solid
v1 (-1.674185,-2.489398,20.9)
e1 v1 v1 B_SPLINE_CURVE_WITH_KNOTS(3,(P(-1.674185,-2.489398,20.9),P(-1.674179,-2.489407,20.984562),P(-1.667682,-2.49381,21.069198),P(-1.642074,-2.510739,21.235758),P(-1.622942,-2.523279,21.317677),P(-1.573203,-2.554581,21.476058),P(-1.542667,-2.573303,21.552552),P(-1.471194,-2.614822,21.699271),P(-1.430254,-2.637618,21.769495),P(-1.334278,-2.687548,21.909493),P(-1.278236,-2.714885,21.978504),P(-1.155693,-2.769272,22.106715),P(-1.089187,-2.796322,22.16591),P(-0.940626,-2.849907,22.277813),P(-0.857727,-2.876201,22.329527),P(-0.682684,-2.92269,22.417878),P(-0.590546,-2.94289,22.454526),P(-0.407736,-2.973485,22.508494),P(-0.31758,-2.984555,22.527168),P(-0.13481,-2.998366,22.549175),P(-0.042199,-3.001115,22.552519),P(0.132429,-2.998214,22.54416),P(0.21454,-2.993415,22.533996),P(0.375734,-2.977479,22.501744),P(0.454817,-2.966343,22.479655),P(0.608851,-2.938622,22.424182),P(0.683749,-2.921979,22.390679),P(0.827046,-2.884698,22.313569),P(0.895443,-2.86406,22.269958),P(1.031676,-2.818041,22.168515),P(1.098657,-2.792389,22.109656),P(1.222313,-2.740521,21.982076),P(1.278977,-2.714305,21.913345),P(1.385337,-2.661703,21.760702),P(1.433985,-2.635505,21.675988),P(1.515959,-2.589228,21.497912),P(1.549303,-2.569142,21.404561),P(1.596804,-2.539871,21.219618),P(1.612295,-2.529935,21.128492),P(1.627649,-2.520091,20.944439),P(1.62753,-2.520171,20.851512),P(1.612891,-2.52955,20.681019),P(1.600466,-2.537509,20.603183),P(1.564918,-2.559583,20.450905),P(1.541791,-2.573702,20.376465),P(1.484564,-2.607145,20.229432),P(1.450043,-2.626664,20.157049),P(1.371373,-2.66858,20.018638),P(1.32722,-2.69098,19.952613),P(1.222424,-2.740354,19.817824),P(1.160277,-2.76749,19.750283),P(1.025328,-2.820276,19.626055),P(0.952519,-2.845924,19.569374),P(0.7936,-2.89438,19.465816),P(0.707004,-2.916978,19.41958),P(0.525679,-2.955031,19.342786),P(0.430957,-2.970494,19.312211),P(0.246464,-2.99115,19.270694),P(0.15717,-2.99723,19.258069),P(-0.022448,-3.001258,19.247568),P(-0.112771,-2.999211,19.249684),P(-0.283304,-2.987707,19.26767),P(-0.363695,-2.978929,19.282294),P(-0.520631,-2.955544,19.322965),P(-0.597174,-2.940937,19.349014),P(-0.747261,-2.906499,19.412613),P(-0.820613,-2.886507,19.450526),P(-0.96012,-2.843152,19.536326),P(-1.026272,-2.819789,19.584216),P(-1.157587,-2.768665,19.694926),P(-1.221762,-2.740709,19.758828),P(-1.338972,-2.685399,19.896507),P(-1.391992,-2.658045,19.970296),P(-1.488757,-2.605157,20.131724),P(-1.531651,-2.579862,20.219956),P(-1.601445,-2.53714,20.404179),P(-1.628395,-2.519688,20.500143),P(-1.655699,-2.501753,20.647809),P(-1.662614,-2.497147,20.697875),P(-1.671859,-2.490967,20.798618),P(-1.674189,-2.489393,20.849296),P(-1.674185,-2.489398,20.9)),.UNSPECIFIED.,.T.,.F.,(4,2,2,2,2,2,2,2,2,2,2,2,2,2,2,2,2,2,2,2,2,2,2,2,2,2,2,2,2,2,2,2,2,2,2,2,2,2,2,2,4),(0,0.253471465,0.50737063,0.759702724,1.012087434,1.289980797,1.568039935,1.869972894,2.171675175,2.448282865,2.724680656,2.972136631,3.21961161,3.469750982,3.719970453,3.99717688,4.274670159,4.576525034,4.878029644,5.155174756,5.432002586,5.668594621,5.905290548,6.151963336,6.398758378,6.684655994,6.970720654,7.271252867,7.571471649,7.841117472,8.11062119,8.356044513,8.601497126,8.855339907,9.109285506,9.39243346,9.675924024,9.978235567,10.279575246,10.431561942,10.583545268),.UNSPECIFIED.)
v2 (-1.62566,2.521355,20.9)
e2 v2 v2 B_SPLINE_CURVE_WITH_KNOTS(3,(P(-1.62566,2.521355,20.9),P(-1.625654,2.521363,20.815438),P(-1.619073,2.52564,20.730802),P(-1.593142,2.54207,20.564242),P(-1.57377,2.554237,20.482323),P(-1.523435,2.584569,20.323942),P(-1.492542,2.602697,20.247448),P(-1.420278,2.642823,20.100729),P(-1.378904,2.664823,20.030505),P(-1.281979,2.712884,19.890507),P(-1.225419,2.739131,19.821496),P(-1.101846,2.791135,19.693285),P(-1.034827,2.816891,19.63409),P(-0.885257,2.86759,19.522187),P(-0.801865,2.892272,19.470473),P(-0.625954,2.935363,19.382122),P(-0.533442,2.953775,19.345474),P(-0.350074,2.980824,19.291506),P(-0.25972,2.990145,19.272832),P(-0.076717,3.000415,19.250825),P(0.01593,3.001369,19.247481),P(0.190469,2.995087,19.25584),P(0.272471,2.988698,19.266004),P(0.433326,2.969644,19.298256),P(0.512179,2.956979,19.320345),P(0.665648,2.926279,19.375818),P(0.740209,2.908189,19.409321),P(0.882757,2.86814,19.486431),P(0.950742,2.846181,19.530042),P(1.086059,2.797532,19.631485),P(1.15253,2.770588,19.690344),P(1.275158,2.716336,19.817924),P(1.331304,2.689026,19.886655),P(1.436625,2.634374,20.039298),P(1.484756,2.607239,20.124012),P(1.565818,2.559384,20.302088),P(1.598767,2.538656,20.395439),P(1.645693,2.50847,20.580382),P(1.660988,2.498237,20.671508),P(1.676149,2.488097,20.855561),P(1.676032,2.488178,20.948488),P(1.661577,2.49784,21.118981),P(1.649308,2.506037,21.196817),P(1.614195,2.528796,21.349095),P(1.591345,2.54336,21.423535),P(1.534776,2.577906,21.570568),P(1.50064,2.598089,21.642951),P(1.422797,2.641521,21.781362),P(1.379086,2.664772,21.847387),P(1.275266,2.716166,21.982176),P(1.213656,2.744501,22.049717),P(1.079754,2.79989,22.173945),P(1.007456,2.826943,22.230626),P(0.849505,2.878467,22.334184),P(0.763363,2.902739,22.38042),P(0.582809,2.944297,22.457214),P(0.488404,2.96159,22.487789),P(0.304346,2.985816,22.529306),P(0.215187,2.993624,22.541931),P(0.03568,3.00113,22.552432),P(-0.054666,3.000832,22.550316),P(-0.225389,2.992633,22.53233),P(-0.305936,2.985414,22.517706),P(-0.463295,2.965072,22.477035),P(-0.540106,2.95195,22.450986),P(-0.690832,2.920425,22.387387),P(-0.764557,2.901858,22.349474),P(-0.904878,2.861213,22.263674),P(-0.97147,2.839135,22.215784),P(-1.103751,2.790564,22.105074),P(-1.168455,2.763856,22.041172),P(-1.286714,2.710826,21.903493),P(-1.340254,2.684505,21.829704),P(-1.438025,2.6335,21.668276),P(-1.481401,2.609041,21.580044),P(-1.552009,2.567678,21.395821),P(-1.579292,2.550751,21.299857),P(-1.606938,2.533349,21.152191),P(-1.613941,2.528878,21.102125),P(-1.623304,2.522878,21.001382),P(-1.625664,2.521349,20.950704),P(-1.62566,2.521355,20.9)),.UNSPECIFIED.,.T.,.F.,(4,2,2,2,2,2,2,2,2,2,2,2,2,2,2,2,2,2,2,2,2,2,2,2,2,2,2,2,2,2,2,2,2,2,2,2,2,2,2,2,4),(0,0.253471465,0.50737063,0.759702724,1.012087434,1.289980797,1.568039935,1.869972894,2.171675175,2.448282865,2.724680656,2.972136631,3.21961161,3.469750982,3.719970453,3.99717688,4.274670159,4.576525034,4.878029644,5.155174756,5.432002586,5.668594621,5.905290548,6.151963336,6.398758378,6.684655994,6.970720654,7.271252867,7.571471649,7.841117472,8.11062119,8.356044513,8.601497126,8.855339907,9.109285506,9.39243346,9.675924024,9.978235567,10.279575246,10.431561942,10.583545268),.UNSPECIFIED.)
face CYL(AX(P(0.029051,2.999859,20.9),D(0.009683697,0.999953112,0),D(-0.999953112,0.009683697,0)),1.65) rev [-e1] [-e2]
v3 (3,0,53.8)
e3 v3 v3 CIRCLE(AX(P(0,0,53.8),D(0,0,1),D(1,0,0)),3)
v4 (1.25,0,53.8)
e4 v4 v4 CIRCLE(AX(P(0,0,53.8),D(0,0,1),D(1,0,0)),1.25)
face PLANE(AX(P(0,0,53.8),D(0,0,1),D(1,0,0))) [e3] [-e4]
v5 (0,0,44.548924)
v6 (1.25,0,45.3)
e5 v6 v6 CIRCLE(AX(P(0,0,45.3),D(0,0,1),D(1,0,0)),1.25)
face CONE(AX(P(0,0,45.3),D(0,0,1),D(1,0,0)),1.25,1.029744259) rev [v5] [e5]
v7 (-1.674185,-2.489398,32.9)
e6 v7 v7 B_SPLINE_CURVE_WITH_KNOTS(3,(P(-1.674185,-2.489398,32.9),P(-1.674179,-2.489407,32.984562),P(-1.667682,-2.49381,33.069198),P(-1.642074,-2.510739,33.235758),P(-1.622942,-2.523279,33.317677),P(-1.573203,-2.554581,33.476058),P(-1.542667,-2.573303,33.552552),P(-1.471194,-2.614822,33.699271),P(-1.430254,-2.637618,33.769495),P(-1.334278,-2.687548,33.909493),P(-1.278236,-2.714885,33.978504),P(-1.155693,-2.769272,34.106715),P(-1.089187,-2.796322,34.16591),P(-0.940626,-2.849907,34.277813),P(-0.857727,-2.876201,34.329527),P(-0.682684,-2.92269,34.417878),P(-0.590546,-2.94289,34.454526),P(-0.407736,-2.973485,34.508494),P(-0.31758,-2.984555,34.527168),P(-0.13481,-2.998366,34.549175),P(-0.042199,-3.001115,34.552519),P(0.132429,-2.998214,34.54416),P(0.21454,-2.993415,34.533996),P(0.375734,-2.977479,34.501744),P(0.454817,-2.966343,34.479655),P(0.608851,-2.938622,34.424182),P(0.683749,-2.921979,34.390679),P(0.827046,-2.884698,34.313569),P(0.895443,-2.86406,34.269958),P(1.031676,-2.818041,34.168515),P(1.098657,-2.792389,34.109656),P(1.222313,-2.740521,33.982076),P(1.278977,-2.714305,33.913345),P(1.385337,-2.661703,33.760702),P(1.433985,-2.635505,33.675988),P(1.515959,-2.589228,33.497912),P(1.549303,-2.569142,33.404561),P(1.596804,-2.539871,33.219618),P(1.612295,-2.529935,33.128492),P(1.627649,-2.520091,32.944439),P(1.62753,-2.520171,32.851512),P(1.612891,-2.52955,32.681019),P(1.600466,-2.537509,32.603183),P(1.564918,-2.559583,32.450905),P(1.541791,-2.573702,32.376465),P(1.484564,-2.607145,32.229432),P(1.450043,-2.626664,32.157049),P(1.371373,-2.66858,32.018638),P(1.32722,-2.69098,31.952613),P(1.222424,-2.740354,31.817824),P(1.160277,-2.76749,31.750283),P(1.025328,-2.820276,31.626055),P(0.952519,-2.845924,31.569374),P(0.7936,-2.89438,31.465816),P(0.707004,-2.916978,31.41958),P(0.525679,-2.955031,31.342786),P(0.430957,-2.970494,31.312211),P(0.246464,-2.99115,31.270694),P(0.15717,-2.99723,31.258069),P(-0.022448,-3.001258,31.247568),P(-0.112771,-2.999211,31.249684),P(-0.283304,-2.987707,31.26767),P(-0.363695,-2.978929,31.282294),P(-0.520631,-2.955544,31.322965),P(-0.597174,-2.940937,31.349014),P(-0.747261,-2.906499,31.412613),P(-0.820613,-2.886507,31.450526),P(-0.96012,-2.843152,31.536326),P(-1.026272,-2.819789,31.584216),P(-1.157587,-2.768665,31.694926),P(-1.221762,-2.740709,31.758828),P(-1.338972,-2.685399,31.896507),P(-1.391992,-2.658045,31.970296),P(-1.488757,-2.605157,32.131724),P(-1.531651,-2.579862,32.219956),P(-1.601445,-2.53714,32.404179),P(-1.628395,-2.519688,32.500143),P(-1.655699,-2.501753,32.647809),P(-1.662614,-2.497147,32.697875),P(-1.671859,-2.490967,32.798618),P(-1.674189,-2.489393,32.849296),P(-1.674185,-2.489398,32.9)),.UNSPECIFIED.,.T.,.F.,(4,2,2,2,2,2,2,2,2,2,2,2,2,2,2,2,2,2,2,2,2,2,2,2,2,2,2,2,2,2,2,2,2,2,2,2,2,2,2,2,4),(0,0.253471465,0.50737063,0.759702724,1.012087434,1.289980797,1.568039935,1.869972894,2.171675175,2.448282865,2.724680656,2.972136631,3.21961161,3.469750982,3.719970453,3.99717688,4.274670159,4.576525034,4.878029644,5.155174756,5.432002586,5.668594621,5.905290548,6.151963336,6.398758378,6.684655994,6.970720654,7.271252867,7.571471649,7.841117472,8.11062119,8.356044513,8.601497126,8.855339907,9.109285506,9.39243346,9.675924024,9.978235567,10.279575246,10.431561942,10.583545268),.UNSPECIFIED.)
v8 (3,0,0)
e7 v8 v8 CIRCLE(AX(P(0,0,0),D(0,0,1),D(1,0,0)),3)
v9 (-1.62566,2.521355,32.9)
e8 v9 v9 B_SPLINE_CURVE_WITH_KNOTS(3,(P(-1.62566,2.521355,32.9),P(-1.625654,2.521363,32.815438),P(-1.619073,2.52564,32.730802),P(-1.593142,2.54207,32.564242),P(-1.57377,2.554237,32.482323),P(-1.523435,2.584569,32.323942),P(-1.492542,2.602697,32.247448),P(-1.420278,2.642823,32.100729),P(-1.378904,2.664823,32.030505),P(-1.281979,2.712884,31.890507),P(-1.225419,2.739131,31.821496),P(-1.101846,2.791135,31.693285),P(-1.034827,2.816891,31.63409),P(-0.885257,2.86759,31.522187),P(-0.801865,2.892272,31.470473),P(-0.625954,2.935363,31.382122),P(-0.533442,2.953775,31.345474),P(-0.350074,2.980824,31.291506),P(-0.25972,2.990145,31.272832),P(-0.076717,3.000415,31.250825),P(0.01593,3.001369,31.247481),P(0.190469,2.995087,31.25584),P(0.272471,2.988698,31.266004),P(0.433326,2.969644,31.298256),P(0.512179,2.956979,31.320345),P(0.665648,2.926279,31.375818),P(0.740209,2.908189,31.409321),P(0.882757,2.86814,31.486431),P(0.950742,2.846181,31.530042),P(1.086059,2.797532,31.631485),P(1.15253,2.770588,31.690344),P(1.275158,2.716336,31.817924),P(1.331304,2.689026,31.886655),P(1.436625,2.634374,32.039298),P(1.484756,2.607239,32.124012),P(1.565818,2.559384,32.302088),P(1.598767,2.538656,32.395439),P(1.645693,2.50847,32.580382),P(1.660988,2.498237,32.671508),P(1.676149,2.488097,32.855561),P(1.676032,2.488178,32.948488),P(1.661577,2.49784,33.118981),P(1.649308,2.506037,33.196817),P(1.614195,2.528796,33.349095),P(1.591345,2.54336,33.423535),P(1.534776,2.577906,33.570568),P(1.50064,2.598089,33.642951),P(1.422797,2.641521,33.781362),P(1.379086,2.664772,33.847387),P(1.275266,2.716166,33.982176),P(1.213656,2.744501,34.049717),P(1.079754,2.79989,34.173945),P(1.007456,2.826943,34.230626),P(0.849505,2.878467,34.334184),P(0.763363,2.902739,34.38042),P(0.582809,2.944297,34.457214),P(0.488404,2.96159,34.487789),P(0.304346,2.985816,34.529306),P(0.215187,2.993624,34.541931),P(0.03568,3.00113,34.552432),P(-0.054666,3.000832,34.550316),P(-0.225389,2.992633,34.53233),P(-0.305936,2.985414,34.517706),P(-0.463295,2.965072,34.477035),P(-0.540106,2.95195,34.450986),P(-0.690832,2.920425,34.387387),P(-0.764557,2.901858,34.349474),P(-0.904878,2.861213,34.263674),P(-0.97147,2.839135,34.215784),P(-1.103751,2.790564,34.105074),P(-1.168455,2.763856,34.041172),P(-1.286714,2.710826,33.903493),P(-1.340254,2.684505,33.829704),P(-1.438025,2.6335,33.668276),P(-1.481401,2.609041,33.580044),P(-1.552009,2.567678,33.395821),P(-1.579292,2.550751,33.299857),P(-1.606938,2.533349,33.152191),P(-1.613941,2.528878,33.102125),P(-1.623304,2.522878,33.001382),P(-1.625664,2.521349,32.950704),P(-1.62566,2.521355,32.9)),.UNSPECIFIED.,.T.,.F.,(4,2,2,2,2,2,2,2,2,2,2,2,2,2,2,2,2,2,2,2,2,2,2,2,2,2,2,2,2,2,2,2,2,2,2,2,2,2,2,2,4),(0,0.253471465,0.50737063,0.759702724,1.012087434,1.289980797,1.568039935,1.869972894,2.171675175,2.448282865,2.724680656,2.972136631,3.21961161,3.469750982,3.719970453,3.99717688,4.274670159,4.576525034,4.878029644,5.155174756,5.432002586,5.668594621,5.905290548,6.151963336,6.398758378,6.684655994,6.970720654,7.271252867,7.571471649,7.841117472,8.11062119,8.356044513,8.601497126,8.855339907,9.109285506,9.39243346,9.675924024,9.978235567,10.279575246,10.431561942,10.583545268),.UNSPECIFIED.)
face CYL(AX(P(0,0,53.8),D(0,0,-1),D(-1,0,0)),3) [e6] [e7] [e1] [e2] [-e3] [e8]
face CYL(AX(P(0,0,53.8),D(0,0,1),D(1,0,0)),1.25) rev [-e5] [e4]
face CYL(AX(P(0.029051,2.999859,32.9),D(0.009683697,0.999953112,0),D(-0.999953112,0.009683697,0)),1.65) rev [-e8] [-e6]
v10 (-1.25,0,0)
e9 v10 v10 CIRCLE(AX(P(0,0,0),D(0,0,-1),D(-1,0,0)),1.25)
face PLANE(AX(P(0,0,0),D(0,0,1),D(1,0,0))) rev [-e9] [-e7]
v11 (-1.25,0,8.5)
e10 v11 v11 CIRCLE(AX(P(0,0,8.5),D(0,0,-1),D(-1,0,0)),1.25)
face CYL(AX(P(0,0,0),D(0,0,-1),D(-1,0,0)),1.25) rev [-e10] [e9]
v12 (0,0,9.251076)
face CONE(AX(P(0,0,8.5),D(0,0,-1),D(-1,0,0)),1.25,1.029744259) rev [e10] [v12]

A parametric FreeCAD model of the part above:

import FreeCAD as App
import Part
import Sketcher
Q = App.Units.Quantity

doc = App.newDocument("Part")
body = doc.addObject("PartDesign::Body", "Body")

# Sketch on XY plane
sketch1 = doc.addObject("Sketcher::SketchObject", "Sketch")
body.addObject(sketch1)
sketch1.AttachmentSupport = (doc.XY_Plane, [""])
sketch1.MapMode = "FlatFace"
sketch1.addGeometry(Part.Circle(App.Vector(0, 0, 0), App.Vector(0, 0, 1), 3), False)
sketch1.addConstraint(Sketcher.Constraint("Coincident", 0, 3, -1, 1))
sketch1.addConstraint(Sketcher.Constraint("Diameter", 0, Q("6 mm")))
pad1 = doc.addObject("PartDesign::Pad", "Pad")
body.addObject(pad1)
pad1.Profile = sketch1
pad1.Length = 53.8

# Sketch on an angled plane
sketch2 = doc.addObject("Sketcher::SketchObject", "Sketch001")
body.addObject(sketch2)
sketch2.Placement = App.Placement(App.Vector(0.029051, 2.999859, 0), App.Rotation(App.Vector(0.999953112, -0.009683697, 0), App.Vector(0, 0, -1), App.Vector(0.009683697, 0.999953112, 0), "ZXY"))
sketch2.addGeometry(Part.Circle(App.Vector(0, -32.9, 0), App.Vector(0, 0, 1), 1.6), False)
sketch2.addGeometry(Part.Circle(App.Vector(0, -20.9, 0), App.Vector(0, 0, 1), 1.6), False)
sketch2.addConstraint(Sketcher.Constraint("Equal", 0, 1))
sketch2.addConstraint(Sketcher.Constraint("PointOnObject", 0, 3, -2))
sketch2.addConstraint(Sketcher.Constraint("PointOnObject", 1, 3, -2))
sketch2.addConstraint(Sketcher.Constraint("Diameter", 0, Q("3.3 mm")))
sketch2.addConstraint(Sketcher.Constraint("DistanceY", 0, 3, 1, 3, Q("12 mm")))
sketch2.addConstraint(Sketcher.Constraint("DistanceY", 0, 3, -1, 1, Q("32.9 mm")))
doc.recompute()
hole = doc.addObject("PartDesign::Hole", "Hole")
body.addObject(hole)
hole.Profile = sketch2
hole.ThreadType = "None"
hole.Diameter = 3.3
hole.DepthType = "Dimension"
hole.Depth = 11.5
hole.DrillPoint = "Angled"
hole.DrillPointAngle = 118

# Sketch on YZ plane
sketch3 = doc.addObject("Sketcher::SketchObject", "Sketch002")
body.addObject(sketch3)
sketch3.AttachmentSupport = (doc.YZ_Plane, [""])
sketch3.MapMode = "FlatFace"
sketch3.addGeometry(Part.LineSegment(App.Vector(0, 44.5, 0), App.Vector(0, 53.8, 0)), False)
sketch3.addGeometry(Part.LineSegment(App.Vector(0, 53.8, 0), App.Vector(-1.2, 53.8, 0)), False)
sketch3.addGeometry(Part.LineSegment(App.Vector(-1.2, 53.8, 0), App.Vector(-1.2, 45.3, 0)), False)
sketch3.addGeometry(Part.LineSegment(App.Vector(-1.2, 45.3, 0), App.Vector(0, 44.5, 0)), False)
sketch3.addConstraint(Sketcher.Constraint("Coincident", 0, 2, 1, 1))
sketch3.addConstraint(Sketcher.Constraint("Coincident", 1, 2, 2, 1))
sketch3.addConstraint(Sketcher.Constraint("Coincident", 2, 2, 3, 1))
sketch3.addConstraint(Sketcher.Constraint("Coincident", 3, 2, 0, 1))
sketch3.addConstraint(Sketcher.Constraint("Vertical", 0))
sketch3.addConstraint(Sketcher.Constraint("Horizontal", 1))
sketch3.addConstraint(Sketcher.Constraint("Vertical", 2))
sketch3.addConstraint(Sketcher.Constraint("PointOnObject", 0, 2, -2))
sketch3.addConstraint(Sketcher.Constraint("Angle", 3, Q("-31 deg")))
sketch3.addConstraint(Sketcher.Constraint("DistanceY", 2, 2, 2, 1, Q("8.5 mm")))
sketch3.addConstraint(Sketcher.Constraint("DistanceX", 1, 2, 1, 1, Q("1.25 mm")))
sketch3.addConstraint(Sketcher.Constraint("DistanceY", -1, 1, 0, 2, Q("53.8 mm")))
groove = doc.addObject("PartDesign::Groove", "Groove")
body.addObject(groove)
groove.Profile = sketch3
groove.ReferenceAxis = (sketch3, ["V_Axis"])
groove.Angle = 360

# Sketch on XY plane
sketch4 = doc.addObject("Sketcher::SketchObject", "Sketch003")
body.addObject(sketch4)
sketch4.AttachmentSupport = (doc.XY_Plane, [""])
sketch4.MapMode = "FlatFace"
sketch4.addGeometry(Part.Circle(App.Vector(0, 0, 0), App.Vector(0, 0, 1), 1.2), False)
sketch4.addConstraint(Sketcher.Constraint("Coincident", 0, 3, -1, 1))
sketch4.addConstraint(Sketcher.Constraint("Diameter", 0, Q("2.5 mm")))
doc.recompute()
hole2 = doc.addObject("PartDesign::Hole", "Hole001")
body.addObject(hole2)
hole2.Profile = sketch4
hole2.ThreadType = "None"
hole2.Diameter = 2.5
hole2.DepthType = "Dimension"
hole2.Depth = 8.5
hole2.DrillPoint = "Angled"
hole2.DrillPointAngle = 118
hole2.Reversed = True

doc.recompute()
